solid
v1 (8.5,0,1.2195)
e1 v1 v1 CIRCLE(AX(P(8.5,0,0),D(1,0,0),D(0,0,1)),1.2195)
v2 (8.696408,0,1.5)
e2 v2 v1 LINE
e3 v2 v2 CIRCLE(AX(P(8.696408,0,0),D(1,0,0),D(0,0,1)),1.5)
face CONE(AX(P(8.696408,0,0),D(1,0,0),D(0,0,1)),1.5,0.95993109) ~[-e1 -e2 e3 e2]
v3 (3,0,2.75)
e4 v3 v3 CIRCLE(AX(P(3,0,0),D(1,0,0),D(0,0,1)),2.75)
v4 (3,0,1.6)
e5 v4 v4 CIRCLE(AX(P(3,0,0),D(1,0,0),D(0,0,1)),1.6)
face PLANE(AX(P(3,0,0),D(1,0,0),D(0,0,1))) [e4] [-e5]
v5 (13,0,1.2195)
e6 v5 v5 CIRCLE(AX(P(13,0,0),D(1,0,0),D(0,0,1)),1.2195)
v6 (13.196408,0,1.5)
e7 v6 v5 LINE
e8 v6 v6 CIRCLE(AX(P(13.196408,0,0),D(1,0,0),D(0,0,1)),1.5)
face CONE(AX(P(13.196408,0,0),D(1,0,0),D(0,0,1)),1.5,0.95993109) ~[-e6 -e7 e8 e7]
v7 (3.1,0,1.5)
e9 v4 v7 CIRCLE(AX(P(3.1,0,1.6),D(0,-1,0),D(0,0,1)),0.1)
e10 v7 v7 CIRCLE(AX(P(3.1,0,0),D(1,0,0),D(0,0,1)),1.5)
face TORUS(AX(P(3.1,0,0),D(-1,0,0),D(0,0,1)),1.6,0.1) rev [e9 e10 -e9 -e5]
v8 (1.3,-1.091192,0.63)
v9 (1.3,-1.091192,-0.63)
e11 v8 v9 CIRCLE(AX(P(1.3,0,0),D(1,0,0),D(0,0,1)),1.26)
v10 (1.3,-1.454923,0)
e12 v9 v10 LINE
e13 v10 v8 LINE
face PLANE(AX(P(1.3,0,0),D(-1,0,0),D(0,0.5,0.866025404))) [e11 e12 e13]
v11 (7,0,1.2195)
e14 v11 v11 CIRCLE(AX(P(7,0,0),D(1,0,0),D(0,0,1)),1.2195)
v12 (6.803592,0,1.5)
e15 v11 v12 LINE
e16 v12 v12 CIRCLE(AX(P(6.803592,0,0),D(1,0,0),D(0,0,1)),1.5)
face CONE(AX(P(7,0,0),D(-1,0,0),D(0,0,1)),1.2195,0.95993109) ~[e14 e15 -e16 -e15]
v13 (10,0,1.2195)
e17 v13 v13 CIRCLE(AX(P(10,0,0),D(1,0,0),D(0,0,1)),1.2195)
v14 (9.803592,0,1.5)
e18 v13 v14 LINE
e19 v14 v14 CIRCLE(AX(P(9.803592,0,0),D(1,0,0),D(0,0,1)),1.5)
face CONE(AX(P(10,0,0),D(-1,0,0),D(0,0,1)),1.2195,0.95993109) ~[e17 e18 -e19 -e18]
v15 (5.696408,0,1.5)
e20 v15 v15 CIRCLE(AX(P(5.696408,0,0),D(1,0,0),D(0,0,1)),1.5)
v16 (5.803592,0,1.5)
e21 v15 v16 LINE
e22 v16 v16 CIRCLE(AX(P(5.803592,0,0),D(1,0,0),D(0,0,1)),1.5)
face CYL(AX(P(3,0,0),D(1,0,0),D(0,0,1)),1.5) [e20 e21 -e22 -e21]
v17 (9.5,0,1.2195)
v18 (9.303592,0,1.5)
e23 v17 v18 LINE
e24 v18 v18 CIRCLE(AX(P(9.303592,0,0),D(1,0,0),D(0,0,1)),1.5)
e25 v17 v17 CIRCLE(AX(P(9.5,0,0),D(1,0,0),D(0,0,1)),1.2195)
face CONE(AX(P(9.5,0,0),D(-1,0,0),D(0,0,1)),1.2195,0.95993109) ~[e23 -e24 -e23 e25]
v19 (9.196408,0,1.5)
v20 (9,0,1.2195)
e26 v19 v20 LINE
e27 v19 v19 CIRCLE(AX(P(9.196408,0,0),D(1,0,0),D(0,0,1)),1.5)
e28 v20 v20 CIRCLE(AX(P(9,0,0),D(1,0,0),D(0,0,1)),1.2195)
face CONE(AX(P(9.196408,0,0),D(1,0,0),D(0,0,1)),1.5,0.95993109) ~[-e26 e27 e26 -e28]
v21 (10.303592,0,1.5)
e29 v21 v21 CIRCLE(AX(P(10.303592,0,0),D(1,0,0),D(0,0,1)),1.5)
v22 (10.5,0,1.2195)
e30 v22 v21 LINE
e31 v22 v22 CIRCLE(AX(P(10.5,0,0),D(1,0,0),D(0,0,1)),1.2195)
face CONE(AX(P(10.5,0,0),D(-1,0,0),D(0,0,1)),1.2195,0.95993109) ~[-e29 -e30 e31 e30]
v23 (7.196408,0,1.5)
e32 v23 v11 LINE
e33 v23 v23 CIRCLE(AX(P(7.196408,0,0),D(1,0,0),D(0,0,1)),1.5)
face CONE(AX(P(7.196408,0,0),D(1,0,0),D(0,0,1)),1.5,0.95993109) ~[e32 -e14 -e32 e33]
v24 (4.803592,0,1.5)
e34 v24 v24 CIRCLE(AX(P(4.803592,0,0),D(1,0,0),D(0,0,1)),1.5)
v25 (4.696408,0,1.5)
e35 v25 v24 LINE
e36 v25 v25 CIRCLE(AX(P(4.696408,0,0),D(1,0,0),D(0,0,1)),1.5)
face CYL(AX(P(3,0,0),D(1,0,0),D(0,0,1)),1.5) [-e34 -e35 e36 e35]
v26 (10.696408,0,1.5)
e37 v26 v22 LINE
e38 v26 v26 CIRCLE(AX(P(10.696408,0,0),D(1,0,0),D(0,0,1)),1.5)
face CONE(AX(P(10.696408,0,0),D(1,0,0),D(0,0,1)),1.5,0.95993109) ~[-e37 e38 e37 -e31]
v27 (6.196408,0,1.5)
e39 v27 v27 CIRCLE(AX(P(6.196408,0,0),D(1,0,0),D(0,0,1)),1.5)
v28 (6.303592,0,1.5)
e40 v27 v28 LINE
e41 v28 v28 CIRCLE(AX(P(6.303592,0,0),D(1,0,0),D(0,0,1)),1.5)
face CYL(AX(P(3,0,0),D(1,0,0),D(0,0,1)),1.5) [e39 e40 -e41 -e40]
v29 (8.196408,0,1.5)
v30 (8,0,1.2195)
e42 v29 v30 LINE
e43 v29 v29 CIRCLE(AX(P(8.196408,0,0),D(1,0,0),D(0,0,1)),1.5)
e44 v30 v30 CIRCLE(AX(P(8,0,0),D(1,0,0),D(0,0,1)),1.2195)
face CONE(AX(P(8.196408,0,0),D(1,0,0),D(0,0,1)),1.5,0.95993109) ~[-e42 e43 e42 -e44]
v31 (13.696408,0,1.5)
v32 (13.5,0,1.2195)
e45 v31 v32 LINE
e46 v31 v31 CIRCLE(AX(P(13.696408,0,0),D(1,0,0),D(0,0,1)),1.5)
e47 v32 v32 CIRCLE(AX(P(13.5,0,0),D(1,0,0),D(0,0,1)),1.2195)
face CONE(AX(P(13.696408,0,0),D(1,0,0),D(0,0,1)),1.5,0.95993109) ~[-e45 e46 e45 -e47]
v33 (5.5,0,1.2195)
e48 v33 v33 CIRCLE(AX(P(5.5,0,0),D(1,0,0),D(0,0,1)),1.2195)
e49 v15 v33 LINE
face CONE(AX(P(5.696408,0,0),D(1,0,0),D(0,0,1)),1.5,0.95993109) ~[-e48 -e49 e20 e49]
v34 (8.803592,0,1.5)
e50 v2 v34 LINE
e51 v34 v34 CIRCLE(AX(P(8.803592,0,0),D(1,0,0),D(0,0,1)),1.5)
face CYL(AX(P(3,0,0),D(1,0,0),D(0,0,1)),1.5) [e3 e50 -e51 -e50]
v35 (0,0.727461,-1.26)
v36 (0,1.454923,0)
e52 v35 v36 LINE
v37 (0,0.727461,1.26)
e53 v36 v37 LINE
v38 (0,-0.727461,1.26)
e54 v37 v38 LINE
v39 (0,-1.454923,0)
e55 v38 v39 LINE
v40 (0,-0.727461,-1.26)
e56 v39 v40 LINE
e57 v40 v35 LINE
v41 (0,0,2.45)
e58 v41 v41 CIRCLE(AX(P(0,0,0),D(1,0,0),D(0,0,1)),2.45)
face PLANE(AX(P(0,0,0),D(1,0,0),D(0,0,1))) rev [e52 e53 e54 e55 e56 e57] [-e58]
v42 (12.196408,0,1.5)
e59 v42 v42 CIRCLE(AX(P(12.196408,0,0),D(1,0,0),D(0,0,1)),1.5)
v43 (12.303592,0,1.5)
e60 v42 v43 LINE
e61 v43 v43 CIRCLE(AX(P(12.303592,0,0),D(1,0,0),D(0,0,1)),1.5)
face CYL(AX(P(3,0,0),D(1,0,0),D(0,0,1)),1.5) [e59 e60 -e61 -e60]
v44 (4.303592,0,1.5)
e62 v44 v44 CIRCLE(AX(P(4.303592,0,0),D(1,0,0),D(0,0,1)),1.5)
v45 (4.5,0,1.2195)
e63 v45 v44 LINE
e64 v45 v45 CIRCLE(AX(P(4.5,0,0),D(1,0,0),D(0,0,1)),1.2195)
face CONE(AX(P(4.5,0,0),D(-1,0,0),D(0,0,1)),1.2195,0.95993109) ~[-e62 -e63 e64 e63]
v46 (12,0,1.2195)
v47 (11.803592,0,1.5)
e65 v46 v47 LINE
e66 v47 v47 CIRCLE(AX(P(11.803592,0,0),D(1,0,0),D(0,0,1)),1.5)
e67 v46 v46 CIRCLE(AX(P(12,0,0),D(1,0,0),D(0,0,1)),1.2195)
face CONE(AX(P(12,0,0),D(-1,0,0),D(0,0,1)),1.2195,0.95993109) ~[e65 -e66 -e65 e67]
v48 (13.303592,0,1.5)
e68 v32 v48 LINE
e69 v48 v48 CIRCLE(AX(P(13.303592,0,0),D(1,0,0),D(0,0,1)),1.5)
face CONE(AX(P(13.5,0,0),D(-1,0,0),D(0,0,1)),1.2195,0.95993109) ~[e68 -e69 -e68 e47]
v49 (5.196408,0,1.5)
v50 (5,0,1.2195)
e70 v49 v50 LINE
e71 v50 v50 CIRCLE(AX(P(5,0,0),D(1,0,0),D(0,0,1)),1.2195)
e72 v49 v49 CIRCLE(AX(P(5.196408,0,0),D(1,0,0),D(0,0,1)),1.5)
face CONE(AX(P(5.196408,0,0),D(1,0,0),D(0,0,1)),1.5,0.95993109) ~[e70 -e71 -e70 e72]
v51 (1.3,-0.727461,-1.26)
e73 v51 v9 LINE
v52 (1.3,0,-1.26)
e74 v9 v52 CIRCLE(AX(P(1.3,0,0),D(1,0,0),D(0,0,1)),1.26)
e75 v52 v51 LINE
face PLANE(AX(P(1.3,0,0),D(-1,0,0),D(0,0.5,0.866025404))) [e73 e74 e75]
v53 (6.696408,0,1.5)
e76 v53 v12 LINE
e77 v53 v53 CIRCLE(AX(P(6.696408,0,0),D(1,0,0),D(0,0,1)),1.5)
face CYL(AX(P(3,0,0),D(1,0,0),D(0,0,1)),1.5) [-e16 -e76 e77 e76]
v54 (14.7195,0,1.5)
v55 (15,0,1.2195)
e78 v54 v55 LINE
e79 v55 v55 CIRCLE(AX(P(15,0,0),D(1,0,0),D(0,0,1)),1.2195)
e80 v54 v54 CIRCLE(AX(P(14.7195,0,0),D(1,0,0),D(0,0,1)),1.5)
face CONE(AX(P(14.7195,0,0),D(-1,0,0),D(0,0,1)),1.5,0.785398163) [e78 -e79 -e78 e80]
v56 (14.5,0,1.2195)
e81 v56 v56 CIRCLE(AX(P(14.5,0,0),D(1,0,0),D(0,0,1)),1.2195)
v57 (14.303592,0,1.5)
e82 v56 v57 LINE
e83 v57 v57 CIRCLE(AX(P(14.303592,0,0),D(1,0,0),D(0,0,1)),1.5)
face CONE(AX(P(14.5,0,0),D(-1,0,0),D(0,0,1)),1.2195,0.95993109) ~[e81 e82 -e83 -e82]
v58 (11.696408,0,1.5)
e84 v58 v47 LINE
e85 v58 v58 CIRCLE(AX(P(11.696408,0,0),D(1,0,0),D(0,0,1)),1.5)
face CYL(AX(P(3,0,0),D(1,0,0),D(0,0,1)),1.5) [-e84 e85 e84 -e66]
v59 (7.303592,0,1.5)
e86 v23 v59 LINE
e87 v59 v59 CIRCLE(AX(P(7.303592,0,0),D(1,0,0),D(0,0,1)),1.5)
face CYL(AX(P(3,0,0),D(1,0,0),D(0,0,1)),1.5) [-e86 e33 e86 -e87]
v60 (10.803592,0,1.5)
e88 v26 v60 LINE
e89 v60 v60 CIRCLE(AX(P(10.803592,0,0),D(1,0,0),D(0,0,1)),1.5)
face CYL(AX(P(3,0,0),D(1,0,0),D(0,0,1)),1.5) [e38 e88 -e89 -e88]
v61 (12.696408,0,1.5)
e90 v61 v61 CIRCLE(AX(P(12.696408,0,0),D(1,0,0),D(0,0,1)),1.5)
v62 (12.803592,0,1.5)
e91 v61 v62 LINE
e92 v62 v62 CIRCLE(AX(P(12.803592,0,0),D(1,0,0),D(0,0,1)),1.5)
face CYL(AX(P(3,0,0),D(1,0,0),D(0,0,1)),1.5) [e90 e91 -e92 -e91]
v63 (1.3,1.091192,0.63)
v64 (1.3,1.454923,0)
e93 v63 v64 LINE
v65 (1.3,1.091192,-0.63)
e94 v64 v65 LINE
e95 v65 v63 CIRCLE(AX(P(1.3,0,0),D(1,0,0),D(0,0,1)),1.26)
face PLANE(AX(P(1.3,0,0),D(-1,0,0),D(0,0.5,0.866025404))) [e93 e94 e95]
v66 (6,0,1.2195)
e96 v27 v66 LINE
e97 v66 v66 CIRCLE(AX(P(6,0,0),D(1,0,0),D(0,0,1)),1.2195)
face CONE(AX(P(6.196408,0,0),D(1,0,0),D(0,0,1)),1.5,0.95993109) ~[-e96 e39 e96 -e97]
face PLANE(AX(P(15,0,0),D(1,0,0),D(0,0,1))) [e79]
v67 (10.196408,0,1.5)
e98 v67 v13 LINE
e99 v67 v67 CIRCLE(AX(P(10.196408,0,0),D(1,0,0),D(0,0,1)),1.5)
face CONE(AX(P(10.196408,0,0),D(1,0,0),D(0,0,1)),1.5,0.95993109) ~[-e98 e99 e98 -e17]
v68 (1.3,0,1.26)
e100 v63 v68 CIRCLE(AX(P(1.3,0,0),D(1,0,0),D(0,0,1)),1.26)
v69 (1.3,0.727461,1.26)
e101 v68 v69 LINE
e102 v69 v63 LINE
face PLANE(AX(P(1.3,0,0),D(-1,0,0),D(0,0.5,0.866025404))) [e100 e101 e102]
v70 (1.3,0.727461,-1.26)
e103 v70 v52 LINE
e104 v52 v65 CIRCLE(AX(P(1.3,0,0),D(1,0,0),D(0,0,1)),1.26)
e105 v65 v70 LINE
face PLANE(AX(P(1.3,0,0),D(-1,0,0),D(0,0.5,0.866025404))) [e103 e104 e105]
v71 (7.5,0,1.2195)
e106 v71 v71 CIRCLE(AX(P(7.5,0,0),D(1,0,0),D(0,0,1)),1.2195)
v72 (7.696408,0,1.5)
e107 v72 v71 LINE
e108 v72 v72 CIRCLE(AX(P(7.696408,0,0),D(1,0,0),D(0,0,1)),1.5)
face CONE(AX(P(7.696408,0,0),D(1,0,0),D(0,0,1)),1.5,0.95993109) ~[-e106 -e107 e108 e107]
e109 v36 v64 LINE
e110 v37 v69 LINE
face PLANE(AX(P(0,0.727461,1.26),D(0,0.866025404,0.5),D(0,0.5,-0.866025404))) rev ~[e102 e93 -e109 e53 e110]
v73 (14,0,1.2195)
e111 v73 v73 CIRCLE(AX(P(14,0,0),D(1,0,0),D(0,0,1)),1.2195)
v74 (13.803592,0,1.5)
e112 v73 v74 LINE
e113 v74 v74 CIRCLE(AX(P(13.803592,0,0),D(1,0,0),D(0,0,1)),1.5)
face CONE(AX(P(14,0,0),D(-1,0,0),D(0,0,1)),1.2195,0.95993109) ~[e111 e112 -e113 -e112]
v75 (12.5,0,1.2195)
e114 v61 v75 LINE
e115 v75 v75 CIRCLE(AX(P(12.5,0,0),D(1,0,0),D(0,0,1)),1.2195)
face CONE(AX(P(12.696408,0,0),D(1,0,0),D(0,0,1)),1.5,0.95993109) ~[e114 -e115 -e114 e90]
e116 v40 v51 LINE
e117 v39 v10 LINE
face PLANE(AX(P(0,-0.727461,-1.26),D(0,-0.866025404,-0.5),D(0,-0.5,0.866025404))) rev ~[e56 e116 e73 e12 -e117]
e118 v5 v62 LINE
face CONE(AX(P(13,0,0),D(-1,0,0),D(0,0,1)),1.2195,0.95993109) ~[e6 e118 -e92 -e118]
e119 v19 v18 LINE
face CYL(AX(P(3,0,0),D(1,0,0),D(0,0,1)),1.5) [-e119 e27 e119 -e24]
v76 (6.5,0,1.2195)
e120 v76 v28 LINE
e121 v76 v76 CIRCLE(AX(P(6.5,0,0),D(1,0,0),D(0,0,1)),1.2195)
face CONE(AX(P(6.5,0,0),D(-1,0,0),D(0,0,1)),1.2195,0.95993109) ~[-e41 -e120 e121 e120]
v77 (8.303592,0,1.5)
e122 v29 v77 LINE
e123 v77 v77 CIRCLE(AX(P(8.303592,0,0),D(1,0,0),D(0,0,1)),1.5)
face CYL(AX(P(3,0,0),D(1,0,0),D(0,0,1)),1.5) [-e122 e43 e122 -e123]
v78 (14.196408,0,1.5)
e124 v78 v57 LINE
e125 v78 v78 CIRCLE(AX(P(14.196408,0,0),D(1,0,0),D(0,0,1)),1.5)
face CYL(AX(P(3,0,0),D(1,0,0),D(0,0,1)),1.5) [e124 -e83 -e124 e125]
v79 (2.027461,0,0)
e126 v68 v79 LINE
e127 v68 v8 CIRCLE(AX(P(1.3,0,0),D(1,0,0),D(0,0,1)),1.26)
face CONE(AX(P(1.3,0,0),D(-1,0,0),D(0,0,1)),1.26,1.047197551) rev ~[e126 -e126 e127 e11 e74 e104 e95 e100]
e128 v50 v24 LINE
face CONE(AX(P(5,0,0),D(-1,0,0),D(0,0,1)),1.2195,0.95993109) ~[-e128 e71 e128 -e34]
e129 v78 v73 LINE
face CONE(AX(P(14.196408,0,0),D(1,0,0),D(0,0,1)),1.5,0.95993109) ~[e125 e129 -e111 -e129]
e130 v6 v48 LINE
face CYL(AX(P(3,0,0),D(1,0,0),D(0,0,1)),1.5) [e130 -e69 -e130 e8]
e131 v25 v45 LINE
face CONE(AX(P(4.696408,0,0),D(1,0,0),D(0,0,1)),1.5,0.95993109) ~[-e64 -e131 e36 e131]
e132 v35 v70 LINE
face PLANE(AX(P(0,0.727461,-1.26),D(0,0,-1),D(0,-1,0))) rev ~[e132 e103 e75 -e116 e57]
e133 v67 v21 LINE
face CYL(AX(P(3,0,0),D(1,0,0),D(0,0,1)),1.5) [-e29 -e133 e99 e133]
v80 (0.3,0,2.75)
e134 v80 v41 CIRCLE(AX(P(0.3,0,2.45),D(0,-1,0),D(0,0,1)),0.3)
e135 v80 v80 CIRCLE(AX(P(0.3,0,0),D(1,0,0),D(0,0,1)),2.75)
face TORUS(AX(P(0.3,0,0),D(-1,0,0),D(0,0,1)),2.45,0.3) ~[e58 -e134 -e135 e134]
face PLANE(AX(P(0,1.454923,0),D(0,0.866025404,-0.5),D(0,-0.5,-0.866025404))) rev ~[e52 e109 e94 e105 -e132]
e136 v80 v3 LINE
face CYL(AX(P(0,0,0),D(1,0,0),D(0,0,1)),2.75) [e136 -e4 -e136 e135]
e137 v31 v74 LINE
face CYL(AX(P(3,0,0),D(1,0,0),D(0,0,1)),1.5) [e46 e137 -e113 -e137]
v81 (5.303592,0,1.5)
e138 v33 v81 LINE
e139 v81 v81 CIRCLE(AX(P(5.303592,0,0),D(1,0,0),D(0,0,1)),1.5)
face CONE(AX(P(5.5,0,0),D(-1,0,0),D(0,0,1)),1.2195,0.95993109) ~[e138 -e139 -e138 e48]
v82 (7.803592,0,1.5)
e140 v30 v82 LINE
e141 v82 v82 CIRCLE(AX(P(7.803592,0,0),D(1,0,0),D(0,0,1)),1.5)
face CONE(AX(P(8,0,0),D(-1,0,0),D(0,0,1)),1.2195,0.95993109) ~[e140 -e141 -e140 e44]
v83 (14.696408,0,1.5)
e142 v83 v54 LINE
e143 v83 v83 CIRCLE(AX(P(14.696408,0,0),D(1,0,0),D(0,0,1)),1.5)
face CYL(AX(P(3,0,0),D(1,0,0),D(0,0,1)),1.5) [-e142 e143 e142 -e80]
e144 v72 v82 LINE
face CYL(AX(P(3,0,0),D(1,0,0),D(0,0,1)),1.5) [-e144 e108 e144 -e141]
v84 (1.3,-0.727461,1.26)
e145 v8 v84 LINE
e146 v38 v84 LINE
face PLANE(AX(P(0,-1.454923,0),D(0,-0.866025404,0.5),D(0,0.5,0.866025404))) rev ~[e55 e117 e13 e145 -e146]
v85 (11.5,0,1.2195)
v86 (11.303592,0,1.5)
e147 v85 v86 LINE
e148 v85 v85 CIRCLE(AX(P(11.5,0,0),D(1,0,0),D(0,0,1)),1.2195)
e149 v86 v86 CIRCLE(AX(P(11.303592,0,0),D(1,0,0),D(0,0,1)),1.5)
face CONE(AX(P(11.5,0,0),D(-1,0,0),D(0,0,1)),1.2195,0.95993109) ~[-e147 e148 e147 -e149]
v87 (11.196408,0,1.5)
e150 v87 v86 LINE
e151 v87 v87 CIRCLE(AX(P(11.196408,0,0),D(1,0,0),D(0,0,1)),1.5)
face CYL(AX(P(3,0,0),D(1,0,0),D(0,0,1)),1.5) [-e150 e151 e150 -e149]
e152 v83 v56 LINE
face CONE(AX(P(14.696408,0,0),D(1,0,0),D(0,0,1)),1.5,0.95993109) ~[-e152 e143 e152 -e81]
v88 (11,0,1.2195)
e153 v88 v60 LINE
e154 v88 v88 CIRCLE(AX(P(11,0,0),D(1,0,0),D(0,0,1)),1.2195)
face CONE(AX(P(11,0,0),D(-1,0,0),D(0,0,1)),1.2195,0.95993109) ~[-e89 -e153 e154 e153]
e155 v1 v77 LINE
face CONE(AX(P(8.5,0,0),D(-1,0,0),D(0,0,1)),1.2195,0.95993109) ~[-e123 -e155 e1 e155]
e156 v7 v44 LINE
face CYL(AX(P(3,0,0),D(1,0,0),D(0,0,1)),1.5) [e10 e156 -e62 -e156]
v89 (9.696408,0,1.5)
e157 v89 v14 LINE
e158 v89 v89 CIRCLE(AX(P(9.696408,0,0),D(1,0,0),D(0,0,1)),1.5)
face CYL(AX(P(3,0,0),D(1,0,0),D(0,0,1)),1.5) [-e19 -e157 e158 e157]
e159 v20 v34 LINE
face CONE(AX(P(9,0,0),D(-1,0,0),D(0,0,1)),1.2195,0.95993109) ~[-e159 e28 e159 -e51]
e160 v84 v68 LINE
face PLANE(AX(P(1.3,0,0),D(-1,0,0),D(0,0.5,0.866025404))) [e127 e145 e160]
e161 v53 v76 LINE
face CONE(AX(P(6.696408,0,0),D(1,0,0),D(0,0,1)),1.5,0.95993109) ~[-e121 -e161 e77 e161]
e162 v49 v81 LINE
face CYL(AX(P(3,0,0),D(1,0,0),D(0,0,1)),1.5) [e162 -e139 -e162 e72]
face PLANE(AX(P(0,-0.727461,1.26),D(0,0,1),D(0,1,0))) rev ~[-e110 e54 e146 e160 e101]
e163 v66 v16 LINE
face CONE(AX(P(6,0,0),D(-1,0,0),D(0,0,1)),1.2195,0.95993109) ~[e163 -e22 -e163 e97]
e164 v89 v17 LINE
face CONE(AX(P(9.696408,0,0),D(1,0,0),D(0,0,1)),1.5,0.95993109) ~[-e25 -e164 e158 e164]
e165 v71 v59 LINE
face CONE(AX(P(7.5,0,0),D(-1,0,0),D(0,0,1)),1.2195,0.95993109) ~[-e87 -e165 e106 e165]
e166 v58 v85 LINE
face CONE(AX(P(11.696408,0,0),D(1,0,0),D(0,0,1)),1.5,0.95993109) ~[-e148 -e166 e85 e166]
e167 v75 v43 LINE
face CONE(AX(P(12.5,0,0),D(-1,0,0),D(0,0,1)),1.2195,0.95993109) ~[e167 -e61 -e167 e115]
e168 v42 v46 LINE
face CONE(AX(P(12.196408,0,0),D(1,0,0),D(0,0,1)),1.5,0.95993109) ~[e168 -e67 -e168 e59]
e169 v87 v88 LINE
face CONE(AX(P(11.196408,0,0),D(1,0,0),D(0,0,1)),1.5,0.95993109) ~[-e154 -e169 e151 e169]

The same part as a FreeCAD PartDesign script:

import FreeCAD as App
import Part
import Sketcher
Q = App.Units.Quantity


def edges_at(feature, points):
    """Names of the edges that pass closest to the given points."""
    edges = feature.Shape.Edges
    near = lambda p: min(range(len(edges)), key=lambda i: edges[i].distToShape(Part.Vertex(*p))[0])
    return sorted({f"Edge{near(p) + 1}" for p in points})


def add_polygon(sketch, points):
    """Adds a closed chain of lines whose ends are joined by coincident constraints."""
    first, n = sketch.GeometryCount, len(points)
    for a, b in zip(points, points[1:] + points[:1]):
        sketch.addGeometry(Part.LineSegment(App.Vector(*a, 0), App.Vector(*b, 0)), False)
    for i in range(n):
        sketch.addConstraint(Sketcher.Constraint("Coincident", first + i, 2, first + (i + 1) % n, 1))

doc = App.newDocument("Part")
body = doc.addObject("PartDesign::Body", "Body")

sketch1 = body.newObject("Sketcher::SketchObject", "Sketch")
sketch1.AttachmentSupport = (doc.getObject("XY_Plane"), [""])
sketch1.MapMode = "FlatFace"
add_polygon(sketch1, [(0, 2.75), (0, 0), (15, 0), (15, 1.22), (14.72, 1.5), (3, 1.5), (3, 2.75)])
sketch1.addConstraint([
    Sketcher.Constraint("Vertical", 0),
    Sketcher.Constraint("Horizontal", 1),
    Sketcher.Constraint("Vertical", 2),
    Sketcher.Constraint("Horizontal", 4),
    Sketcher.Constraint("Vertical", 5),
    Sketcher.Constraint("Horizontal", 6),
    Sketcher.Constraint("Coincident", 0, 2, -1, 1),
    Sketcher.Constraint("DistanceX", 1, 1, 1, 2, Q("15 mm")),
    Sketcher.Constraint("DistanceX", 6, 2, 6, 1, Q("3 mm")),
    Sketcher.Constraint("Angle", 3, Q("135 deg")),
    Sketcher.Constraint("DistanceY", 0, 2, 0, 1, Q("2.75 mm")),
    Sketcher.Constraint("DistanceY", 5, 1, 5, 2, Q("1.25 mm")),
    Sketcher.Constraint("DistanceX", 4, 2, 4, 1, Q("11.7195 mm")),
])
revolution = body.newObject("PartDesign::Revolution", "Revolution")
revolution.Profile = sketch1
revolution.ReferenceAxis = (sketch1, ["H_Axis"])
revolution.Angle = 360
doc.recompute()

fillet = body.newObject("PartDesign::Fillet", "Fillet")
fillet.Base = (revolution, edges_at(revolution, [(3, 0, -1.5)]))
fillet.Radius = 0.1
doc.recompute()

fillet2 = body.newObject("PartDesign::Fillet", "Fillet001")
fillet2.Base = (fillet, edges_at(fillet, [(0, 0, -2.75)]))
fillet2.Radius = 0.3

sketch2 = body.newObject("Sketcher::SketchObject", "Sketch001")
sketch2.AttachmentSupport = (doc.getObject("XY_Plane"), [""])
sketch2.MapMode = "FlatFace"
add_polygon(sketch2, [(1.3, 1.3), (0, 1.3), (0, 0), (2, 0)])
sketch2.addConstraint([
    Sketcher.Constraint("Horizontal", 0),
    Sketcher.Constraint("Vertical", 1),
    Sketcher.Constraint("Horizontal", 2),
    Sketcher.Constraint("Coincident", 1, 2, -1, 1),
    Sketcher.Constraint("Angle", 3, Q("120 deg")),
    Sketcher.Constraint("DistanceX", 0, 2, 0, 1, Q("1.3 mm")),
    Sketcher.Constraint("DistanceY", 1, 2, 1, 1, Q("1.26 mm")),
])
groove = body.newObject("PartDesign::Groove", "Groove")
groove.Profile = sketch2
groove.ReferenceAxis = (sketch2, ["H_Axis"])
groove.Angle = 360

sketch3 = body.newObject("Sketcher::SketchObject", "Sketch002")
sketch3.AttachmentSupport = (doc.getObject("YZ_Plane"), [""])
sketch3.MapMode = "FlatFace"
add_polygon(sketch3, [(1.5, 0), (0.7, -1.3), (-0.7, -1.3), (-1.5, 0), (-0.7, 1.3), (0.7, 1.3)])
sketch3.addConstraint([
    Sketcher.Constraint("Horizontal", 1),
    Sketcher.Constraint("Horizontal", 4),
    Sketcher.Constraint("Symmetric", 0, 2, 3, 2, -1, 1),
    Sketcher.Constraint("Symmetric", 2, 2, 5, 2, -1, 1),
    Sketcher.Constraint("PointOnObject", 2, 2, -1),
    Sketcher.Constraint("Parallel", 2, 5),
    Sketcher.Constraint("Vertical", 1, 2, 3, 2),
    Sketcher.Constraint("Angle", 0, Q("-120 deg")),
    Sketcher.Constraint("DistanceY", 0, 2, -1, 1, Q("1.26 mm")),
    Sketcher.Constraint("DistanceX", 1, 2, 1, 1, Q("1.454923 mm")),
])
pocket1 = body.newObject("PartDesign::Pocket", "Pocket")
pocket1.Profile = sketch3
pocket1.Length = 1.3
pocket1.Reversed = True

sketch4 = body.newObject("Sketcher::SketchObject", "Sketch003")
sketch4.AttachmentSupport = (doc.getObject("XY_Plane"), [""])
sketch4.MapMode = "FlatFace"
add_polygon(sketch4, [(4.5, -1.22), (4.3, -1.5), (4.3, -1.88), (4.7, -1.88), (4.7, -1.5)])
sketch4.addConstraint([
    Sketcher.Constraint("Vertical", 1),
    Sketcher.Constraint("Horizontal", 2),
    Sketcher.Constraint("Vertical", 3),
    Sketcher.Constraint("Horizontal", 0, 2, 3, 2),
    Sketcher.Constraint("Equal", 0, 4),
    Sketcher.Constraint("Angle", 0, Q("-125 deg")),
    Sketcher.Constraint("DistanceY", 0, 2, -1, 1, Q("1.5 mm")),
    Sketcher.Constraint("DistanceX", -1, 1, 4, 2, Q("4.5 mm")),
    Sketcher.Constraint("DistanceY", 1, 2, 1, 1, Q("0.375 mm")),
    Sketcher.Constraint("DistanceY", 4, 2, -1, 1, Q("1.2195 mm")),
])
groove2 = body.newObject("PartDesign::Groove", "Groove001")
groove2.Profile = sketch4
groove2.ReferenceAxis = (sketch4, ["H_Axis"])
groove2.Angle = 360
doc.recompute()

linearpattern = body.newObject("PartDesign::LinearPattern", "LinearPattern")
linearpattern.Originals = [groove2]
linearpattern.Direction = (doc.getObject("X_Axis"), [""])
linearpattern.Mode = "offset"
linearpattern.Offset = 0.5
linearpattern.Occurrences = 21
body.Tip = linearpattern

doc.recompute()
